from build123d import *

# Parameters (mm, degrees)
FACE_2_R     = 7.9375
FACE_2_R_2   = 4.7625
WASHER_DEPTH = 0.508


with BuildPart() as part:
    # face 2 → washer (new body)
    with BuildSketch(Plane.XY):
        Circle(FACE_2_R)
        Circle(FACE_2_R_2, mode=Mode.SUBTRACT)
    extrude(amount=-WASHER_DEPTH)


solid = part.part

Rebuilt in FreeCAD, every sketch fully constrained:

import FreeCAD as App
import Part
import Sketcher
Q = App.Units.Quantity

doc = App.newDocument("Part")
body = doc.addObject("PartDesign::Body", "Body")

# Sketch on XY plane
sketch1 = body.newObject("Sketcher::SketchObject", "Sketch")
sketch1.AttachmentSupport = (doc.getObject("XY_Plane"), [""])
sketch1.MapMode = "FlatFace"
sketch1.addGeometry([
    Part.Circle(App.Vector(0, 0, 0), App.Vector(0, 0, 1), 7.9),
    Part.Circle(App.Vector(0, 0, 0), App.Vector(0, 0, 1), 4.8),
], False)
sketch1.addConstraint([
    Sketcher.Constraint("Coincident", 0, 3, -1, 1),
    Sketcher.Constraint("Coincident", 1, 3, -1, 1),
    Sketcher.Constraint("Diameter", 0, Q("0.625 in")),
    Sketcher.Constraint("Diameter", 1, Q("0.375 in")),
])
pad1 = body.newObject("PartDesign::Pad", "Pad")
pad1.Profile = sketch1
pad1.Length = Q("0.02 in")
pad1.Reversed = True

doc.recompute()
